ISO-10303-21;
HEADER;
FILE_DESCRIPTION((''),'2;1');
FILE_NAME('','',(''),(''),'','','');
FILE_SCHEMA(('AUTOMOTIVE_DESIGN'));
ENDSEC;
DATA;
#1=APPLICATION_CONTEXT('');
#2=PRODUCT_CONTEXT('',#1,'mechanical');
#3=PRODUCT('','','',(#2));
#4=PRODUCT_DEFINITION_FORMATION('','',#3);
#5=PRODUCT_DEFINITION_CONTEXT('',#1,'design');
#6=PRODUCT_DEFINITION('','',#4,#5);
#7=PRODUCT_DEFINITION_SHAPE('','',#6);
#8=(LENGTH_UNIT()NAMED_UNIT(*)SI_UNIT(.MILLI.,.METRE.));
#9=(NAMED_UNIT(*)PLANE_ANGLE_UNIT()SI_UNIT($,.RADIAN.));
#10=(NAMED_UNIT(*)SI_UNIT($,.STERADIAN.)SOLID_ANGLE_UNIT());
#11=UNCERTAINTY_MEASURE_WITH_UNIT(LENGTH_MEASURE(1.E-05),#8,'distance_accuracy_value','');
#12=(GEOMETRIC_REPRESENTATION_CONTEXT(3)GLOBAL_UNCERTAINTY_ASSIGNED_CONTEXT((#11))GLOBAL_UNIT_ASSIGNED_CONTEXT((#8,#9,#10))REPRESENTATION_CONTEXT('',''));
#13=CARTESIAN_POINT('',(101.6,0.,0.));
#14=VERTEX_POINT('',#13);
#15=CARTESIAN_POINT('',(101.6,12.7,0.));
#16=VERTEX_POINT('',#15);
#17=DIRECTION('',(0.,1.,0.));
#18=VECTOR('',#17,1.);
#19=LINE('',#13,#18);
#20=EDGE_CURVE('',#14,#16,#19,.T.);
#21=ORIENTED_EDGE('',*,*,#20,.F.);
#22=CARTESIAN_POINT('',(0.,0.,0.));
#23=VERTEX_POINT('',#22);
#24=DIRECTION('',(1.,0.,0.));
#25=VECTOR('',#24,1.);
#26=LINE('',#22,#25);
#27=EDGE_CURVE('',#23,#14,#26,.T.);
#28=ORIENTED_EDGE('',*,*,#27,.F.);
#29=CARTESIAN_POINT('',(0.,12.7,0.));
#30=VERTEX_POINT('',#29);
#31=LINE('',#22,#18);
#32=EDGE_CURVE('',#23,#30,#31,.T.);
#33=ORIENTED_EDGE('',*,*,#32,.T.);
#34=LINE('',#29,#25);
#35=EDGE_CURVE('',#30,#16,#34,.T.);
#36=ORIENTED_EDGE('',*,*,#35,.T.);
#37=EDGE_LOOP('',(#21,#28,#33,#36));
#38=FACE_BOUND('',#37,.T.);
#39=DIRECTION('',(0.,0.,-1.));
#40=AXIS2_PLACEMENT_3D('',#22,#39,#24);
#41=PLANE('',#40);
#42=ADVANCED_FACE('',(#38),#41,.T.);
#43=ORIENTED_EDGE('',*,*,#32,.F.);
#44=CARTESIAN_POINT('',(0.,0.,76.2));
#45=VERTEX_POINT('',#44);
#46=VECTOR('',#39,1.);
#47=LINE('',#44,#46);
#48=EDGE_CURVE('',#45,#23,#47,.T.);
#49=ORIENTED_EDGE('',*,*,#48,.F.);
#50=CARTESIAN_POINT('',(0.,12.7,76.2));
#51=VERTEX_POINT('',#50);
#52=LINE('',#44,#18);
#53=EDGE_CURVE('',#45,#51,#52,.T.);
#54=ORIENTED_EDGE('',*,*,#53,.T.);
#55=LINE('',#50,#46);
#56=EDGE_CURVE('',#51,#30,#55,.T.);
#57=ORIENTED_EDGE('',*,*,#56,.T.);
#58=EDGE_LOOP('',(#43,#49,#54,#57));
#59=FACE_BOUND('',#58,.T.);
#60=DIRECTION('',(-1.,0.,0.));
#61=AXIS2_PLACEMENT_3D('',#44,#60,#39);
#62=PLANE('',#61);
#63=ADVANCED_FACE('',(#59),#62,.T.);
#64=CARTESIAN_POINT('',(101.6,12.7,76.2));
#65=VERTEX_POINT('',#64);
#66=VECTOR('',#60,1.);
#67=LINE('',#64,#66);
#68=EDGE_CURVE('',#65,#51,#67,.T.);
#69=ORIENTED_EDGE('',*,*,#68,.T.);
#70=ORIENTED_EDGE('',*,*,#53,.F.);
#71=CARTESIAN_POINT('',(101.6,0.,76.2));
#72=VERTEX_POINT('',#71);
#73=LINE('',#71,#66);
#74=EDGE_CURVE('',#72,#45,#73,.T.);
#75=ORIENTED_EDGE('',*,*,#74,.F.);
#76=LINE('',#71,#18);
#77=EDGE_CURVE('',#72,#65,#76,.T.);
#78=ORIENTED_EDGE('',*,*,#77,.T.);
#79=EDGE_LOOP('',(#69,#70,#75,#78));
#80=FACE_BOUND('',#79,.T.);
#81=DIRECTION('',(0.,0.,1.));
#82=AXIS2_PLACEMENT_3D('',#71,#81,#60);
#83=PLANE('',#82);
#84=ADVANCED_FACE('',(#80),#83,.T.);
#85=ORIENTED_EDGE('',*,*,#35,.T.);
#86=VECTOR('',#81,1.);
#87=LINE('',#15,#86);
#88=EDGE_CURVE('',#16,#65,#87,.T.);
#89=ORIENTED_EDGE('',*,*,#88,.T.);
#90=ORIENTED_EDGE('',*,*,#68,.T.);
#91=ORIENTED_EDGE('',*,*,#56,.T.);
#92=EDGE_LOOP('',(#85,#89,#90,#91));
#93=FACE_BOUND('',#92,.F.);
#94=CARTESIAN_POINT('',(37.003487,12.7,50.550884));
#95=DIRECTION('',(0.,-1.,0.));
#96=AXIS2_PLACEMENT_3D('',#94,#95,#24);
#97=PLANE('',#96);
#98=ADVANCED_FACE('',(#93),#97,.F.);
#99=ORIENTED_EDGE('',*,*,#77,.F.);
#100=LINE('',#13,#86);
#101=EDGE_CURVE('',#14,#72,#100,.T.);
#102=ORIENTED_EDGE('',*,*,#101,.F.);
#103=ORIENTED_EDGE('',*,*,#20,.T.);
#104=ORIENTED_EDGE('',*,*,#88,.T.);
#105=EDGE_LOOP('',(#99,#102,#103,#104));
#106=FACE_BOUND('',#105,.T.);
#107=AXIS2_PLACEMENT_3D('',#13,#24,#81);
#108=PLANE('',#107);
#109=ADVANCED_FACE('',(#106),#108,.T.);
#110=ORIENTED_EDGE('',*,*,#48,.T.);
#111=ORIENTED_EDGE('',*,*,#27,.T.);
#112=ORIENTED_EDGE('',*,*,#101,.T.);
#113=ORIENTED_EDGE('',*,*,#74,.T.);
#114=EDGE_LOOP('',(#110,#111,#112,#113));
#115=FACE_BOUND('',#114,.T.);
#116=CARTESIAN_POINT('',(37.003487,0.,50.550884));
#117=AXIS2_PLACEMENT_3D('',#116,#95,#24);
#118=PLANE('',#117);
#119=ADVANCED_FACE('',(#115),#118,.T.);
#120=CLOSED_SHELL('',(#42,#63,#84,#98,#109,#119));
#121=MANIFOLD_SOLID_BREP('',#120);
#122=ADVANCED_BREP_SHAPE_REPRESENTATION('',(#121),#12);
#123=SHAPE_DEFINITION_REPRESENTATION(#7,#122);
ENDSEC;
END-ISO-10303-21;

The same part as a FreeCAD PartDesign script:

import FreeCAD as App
import Part
import Sketcher

V = App.Vector
Q = App.Units.Quantity


def add_polygon(sketch, points):
    """Adds a closed chain of lines whose ends are joined by coincident constraints."""
    first, n = sketch.GeometryCount, len(points)
    for a, b in zip(points, points[1:] + points[:1]):
        sketch.addGeometry(Part.LineSegment(App.Vector(*a, 0), App.Vector(*b, 0)), False)
    for i in range(n):
        sketch.addConstraint(Sketcher.Constraint("Coincident", first + i, 2, first + (i + 1) % n, 1))

doc = App.newDocument("Part")
params = doc.addObject("Spreadsheet::Sheet", "Params")
for row, (alias, value) in enumerate([
    ("sketch1_width", "4 in"),
    ("sketch1_height", "3 in"),
    ("pad1_length", "0.5 in"),
], start=1):
    params.set(f"A{row}", alias)
    params.set(f"B{row}", "=" + value)
    params.setAlias(f"B{row}", alias)

body = doc.addObject("PartDesign::Body", "Body")

sketch1 = doc.addObject("Sketcher::SketchObject", "Sketch")
body.addObject(sketch1)
sketch1.AttachmentSupport = (doc.XZ_Plane, [""])
sketch1.MapMode = "FlatFace"
add_polygon(sketch1, [(0, 76), (0, 0), (102, 0), (102, 76)])
sketch1.addConstraint([
    Sketcher.Constraint("Vertical", 0),
    Sketcher.Constraint("Horizontal", 1),
    Sketcher.Constraint("Vertical", 2),
    Sketcher.Constraint("Horizontal", 3),
    Sketcher.Constraint("Coincident", 0, 2, -1, 1),
    Sketcher.Constraint("DistanceX", 1, 1, 1, 2, Q("4 in")),
    Sketcher.Constraint("DistanceY", 0, 2, 0, 1, Q("3 in")),
])
sketch1.setExpression("Constraints[9]", "Params.sketch1_width")
sketch1.setExpression("Constraints[10]", "Params.sketch1_height")
pad1 = doc.addObject("PartDesign::Pad", "Pad")
body.addObject(pad1)
pad1.Profile = sketch1
pad1.setExpression("Length", "Params.pad1_length")
pad1.Reversed = True

doc.recompute()
